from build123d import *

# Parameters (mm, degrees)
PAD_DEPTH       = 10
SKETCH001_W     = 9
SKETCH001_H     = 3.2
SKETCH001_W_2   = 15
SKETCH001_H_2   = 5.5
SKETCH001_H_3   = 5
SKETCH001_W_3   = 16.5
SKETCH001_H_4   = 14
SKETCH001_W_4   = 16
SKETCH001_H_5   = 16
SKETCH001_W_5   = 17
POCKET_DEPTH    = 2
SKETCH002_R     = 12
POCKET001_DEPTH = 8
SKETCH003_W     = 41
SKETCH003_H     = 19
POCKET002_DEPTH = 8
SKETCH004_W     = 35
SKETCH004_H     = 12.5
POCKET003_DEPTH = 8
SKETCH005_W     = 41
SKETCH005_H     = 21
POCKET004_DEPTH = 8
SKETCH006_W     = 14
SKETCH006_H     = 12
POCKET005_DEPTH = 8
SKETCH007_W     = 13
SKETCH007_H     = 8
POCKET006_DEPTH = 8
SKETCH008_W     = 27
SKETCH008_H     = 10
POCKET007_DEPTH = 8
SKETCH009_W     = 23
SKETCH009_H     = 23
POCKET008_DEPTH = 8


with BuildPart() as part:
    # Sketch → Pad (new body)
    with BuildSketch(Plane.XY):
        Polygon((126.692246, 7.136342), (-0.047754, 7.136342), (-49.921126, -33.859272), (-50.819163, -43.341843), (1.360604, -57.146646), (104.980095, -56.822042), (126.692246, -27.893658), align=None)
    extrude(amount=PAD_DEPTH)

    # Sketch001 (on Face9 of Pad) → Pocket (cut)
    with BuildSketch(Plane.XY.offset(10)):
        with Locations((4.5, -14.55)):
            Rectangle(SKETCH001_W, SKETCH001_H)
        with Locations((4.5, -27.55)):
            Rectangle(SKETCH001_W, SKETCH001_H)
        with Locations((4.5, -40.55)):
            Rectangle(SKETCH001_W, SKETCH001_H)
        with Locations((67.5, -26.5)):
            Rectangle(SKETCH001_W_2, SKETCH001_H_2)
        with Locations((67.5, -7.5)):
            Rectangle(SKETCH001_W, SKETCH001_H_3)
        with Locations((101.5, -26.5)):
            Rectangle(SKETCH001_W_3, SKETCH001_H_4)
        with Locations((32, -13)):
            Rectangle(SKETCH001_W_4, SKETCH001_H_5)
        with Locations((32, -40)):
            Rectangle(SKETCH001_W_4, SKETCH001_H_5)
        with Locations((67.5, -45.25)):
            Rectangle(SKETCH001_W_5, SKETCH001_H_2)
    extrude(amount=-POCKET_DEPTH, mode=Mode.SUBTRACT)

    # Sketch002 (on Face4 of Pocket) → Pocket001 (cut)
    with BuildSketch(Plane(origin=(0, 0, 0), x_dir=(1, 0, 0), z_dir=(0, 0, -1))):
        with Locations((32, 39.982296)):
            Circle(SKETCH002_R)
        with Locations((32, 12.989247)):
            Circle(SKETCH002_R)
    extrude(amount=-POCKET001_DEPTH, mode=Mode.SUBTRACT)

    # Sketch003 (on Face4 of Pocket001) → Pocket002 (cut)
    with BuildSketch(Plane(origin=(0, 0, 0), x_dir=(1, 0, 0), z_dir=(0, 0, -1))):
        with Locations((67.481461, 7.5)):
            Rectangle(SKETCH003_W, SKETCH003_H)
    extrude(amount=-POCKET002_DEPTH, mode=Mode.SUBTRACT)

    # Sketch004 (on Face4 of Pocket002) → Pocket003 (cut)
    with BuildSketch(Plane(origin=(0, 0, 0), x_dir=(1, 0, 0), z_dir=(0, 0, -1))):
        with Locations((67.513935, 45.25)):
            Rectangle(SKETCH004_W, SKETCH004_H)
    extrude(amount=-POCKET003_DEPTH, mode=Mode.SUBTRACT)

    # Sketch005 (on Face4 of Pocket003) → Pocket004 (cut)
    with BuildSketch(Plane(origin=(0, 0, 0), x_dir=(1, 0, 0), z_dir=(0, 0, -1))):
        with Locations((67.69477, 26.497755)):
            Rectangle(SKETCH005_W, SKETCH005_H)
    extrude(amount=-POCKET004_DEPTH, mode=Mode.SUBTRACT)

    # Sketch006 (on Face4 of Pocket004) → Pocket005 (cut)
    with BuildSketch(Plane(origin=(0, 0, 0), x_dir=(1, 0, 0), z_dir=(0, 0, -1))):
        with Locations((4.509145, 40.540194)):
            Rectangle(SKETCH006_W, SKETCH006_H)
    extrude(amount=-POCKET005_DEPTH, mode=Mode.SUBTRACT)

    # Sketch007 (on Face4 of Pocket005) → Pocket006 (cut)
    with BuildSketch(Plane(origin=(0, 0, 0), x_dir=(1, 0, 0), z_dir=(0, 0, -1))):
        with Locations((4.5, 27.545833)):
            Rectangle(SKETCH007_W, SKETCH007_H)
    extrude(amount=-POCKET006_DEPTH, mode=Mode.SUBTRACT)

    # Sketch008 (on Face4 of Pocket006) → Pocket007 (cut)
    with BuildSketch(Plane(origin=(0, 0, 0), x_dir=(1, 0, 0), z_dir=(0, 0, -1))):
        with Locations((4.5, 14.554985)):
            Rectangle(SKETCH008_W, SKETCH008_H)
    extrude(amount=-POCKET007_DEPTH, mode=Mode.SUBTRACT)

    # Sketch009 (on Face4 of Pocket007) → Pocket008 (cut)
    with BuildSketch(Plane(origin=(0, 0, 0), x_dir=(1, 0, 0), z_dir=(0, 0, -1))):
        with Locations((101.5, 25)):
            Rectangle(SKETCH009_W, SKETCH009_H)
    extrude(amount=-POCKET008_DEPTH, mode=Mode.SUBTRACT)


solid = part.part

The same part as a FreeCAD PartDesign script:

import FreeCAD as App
import Part
import Sketcher
Q = App.Units.Quantity

doc = App.newDocument("Part")
params = doc.addObject("Spreadsheet::Sheet", "Params")
for row, (alias, value) in enumerate([
    ("sketch1_width", "126.74 mm"),
    ("sketch1_height", "35.03 mm"),
    ("sketch1_length", "64.56 mm"),
    ("sketch1_length2", "103.619999 mm"),
    ("sketch1_length3", "36.17 mm"),
    ("pad1_length", "10 mm"),
    ("sketch2_width", "9 mm"),
    ("sketch2_width2", "15 mm"),
    ("sketch2_width3", "16 mm"),
    ("sketch2_width4", "17 mm"),
    ("sketch2_height", "5 mm"),
    ("pocket1_length", "2 mm"),
    ("sketch3_diameter", "24 mm"),
    ("pocket2_length", "8 mm"),
    ("sketch4_width", "41 mm"),
    ("sketch4_height", "19 mm"),
    ("pocket3_length", "8 mm"),
    ("sketch5_width", "35 mm"),
    ("sketch5_height", "12.5 mm"),
    ("pocket4_length", "8 mm"),
    ("sketch6_width", "41 mm"),
    ("sketch6_height", "21 mm"),
    ("pocket5_length", "8 mm"),
    ("sketch7_width", "14 mm"),
    ("sketch7_height", "12 mm"),
    ("pocket6_length", "8 mm"),
    ("sketch8_width", "13 mm"),
    ("sketch8_height", "8 mm"),
    ("pocket7_length", "8 mm"),
    ("sketch9_width", "27 mm"),
    ("sketch9_height", "10 mm"),
    ("pocket8_length", "8 mm"),
    ("sketch10_width", "23 mm"),
    ("pocket9_length", "8 mm"),
], start=1):
    params.set(f"A{row}", alias)
    params.set(f"B{row}", "=" + value)
    params.setAlias(f"B{row}", alias)

body = doc.addObject("PartDesign::Body", "Body")

sketch1 = body.newObject("Sketcher::SketchObject", "Sketch")
sketch1.AttachmentSupport = (doc.getObject("XY_Plane"), [""])
sketch1.MapMode = "FlatFace"
sketch1.addGeometry([
    Part.LineSegment(App.Vector(126.692246, 7.136342, 0), App.Vector(-0.047754, 7.136342, 0)),
    Part.LineSegment(App.Vector(-0.047754, 7.136342, 0), App.Vector(-49.921126, -33.859272, 0)),
    Part.LineSegment(App.Vector(-49.921126, -33.859272, 0), App.Vector(-50.819163, -43.341843, 0)),
    Part.LineSegment(App.Vector(-50.819163, -43.341843, 0), App.Vector(1.360604, -57.146646, 0)),
    Part.LineSegment(App.Vector(1.360604, -57.146646, 0), App.Vector(104.980095, -56.822042, 0)),
    Part.LineSegment(App.Vector(104.980095, -56.822042, 0), App.Vector(126.692246, -27.893658, 0)),
    Part.LineSegment(App.Vector(126.692246, -27.893658, 0), App.Vector(126.692246, 7.136342, 0)),
], False)
sketch1.addConstraint([
    Sketcher.Constraint("Coincident", 0, 2, 1, 1),
    Sketcher.Constraint("Coincident", 1, 2, 2, 1),
    Sketcher.Constraint("Coincident", 2, 2, 3, 1),
    Sketcher.Constraint("Coincident", 3, 2, 4, 1),
    Sketcher.Constraint("Coincident", 4, 2, 5, 1),
    Sketcher.Constraint("Coincident", 5, 2, 6, 1),
    Sketcher.Constraint("Coincident", 6, 2, 0, 1),
    Sketcher.Constraint("Horizontal", 0),
    Sketcher.Constraint("Vertical", 6),
    Sketcher.Constraint("DistanceX", 0, 2, 0, 1, 126.74),
    Sketcher.Constraint("DistanceY", 6, 1, 6, 2, 35.03),
    Sketcher.Constraint("Angle", 1, Q("-140.579999 deg")),
    Sketcher.Constraint("Angle", 2, Q("-95.410002 deg")),
    Sketcher.Constraint("Angle", 5, Q("53.11 deg")),
    Sketcher.Constraint("Distance", 1, 64.56),
    Sketcher.Constraint("Distance", 4, 103.619999),
    Sketcher.Constraint("Distance", 5, 36.17),
    Sketcher.Constraint("Distance", 2, 9.525),
    Sketcher.Constraint("Distance", 3, 53.975),
    Sketcher.Constraint("DistanceY", 1, 2, -1, 1, 33.859272),
    Sketcher.Constraint("DistanceX", 0, 2, -1, 1, 0.047754),
])
sketch1.setExpression("Constraints[9]", "Params.sketch1_width")
sketch1.setExpression("Constraints[10]", "Params.sketch1_height")
sketch1.setExpression("Constraints[14]", "Params.sketch1_length")
sketch1.setExpression("Constraints[15]", "Params.sketch1_length2")
sketch1.setExpression("Constraints[16]", "Params.sketch1_length3")
pad1 = body.newObject("PartDesign::Pad", "Pad")
pad1.Profile = sketch1
pad1.setExpression("Length", "Params.pad1_length")

sketch2 = body.newObject("Sketcher::SketchObject", "Sketch001")
sketch2.AttachmentSupport = (doc.getObject("XY_Plane"), [""])
sketch2.MapMode = "FlatFace"
sketch2.AttachmentOffset = App.Placement(App.Vector(0, 0, 10), App.Rotation())
sketch2.addGeometry([
    Part.LineSegment(App.Vector(0, -12.95, 0), App.Vector(0, -16.15, 0)),
    Part.LineSegment(App.Vector(0, -16.15, 0), App.Vector(9, -16.15, 0)),
    Part.LineSegment(App.Vector(9, -16.15, 0), App.Vector(9, -12.95, 0)),
    Part.LineSegment(App.Vector(9, -12.95, 0), App.Vector(0, -12.95, 0)),
    Part.LineSegment(App.Vector(0, -25.95, 0), App.Vector(0, -29.15, 0)),
    Part.LineSegment(App.Vector(0, -29.15, 0), App.Vector(9, -29.15, 0)),
    Part.LineSegment(App.Vector(9, -29.15, 0), App.Vector(9, -25.95, 0)),
    Part.LineSegment(App.Vector(9, -25.95, 0), App.Vector(0, -25.95, 0)),
    Part.LineSegment(App.Vector(0, -38.95, 0), App.Vector(0, -42.15, 0)),
    Part.LineSegment(App.Vector(0, -42.15, 0), App.Vector(9, -42.15, 0)),
    Part.LineSegment(App.Vector(9, -42.15, 0), App.Vector(9, -38.95, 0)),
    Part.LineSegment(App.Vector(9, -38.95, 0), App.Vector(0, -38.95, 0)),
    Part.LineSegment(App.Vector(60, -23.75, 0), App.Vector(60, -29.25, 0)),
    Part.LineSegment(App.Vector(60, -29.25, 0), App.Vector(75, -29.25, 0)),
    Part.LineSegment(App.Vector(75, -29.25, 0), App.Vector(75, -23.75, 0)),
    Part.LineSegment(App.Vector(75, -23.75, 0), App.Vector(60, -23.75, 0)),
    Part.LineSegment(App.Vector(63, -5, 0), App.Vector(63, -10, 0)),
    Part.LineSegment(App.Vector(63, -10, 0), App.Vector(72, -10, 0)),
    Part.LineSegment(App.Vector(72, -10, 0), App.Vector(72, -5, 0)),
    Part.LineSegment(App.Vector(72, -5, 0), App.Vector(63, -5, 0)),
    Part.LineSegment(App.Vector(93.25, -19.5, 0), App.Vector(93.25, -33.5, 0)),
    Part.LineSegment(App.Vector(93.25, -33.5, 0), App.Vector(109.75, -33.5, 0)),
    Part.LineSegment(App.Vector(109.75, -33.5, 0), App.Vector(109.75, -19.5, 0)),
    Part.LineSegment(App.Vector(109.75, -19.5, 0), App.Vector(93.25, -19.5, 0)),
    Part.LineSegment(App.Vector(24, -5, 0), App.Vector(24, -21, 0)),
    Part.LineSegment(App.Vector(24, -21, 0), App.Vector(40, -21, 0)),
    Part.LineSegment(App.Vector(40, -21, 0), App.Vector(40, -5, 0)),
    Part.LineSegment(App.Vector(40, -5, 0), App.Vector(24, -5, 0)),
    Part.LineSegment(App.Vector(24, -32, 0), App.Vector(24, -48, 0)),
    Part.LineSegment(App.Vector(24, -48, 0), App.Vector(40, -48, 0)),
    Part.LineSegment(App.Vector(40, -48, 0), App.Vector(40, -32, 0)),
    Part.LineSegment(App.Vector(40, -32, 0), App.Vector(24, -32, 0)),
    Part.LineSegment(App.Vector(59, -42.5, 0), App.Vector(59, -48, 0)),
    Part.LineSegment(App.Vector(59, -48, 0), App.Vector(76, -48, 0)),
    Part.LineSegment(App.Vector(76, -48, 0), App.Vector(76, -42.5, 0)),
    Part.LineSegment(App.Vector(76, -42.5, 0), App.Vector(59, -42.5, 0)),
], False)
sketch2.addConstraint([
    Sketcher.Constraint("Coincident", 0, 2, 1, 1),
    Sketcher.Constraint("Coincident", 1, 2, 2, 1),
    Sketcher.Constraint("Coincident", 2, 2, 3, 1),
    Sketcher.Constraint("Coincident", 3, 2, 0, 1),
    Sketcher.Constraint("Coincident", 4, 2, 5, 1),
    Sketcher.Constraint("Coincident", 5, 2, 6, 1),
    Sketcher.Constraint("Coincident", 6, 2, 7, 1),
    Sketcher.Constraint("Coincident", 7, 2, 4, 1),
    Sketcher.Constraint("Coincident", 8, 2, 9, 1),
    Sketcher.Constraint("Coincident", 9, 2, 10, 1),
    Sketcher.Constraint("Coincident", 10, 2, 11, 1),
    Sketcher.Constraint("Coincident", 11, 2, 8, 1),
    Sketcher.Constraint("Coincident", 12, 2, 13, 1),
    Sketcher.Constraint("Coincident", 13, 2, 14, 1),
    Sketcher.Constraint("Coincident", 14, 2, 15, 1),
    Sketcher.Constraint("Coincident", 15, 2, 12, 1),
    Sketcher.Constraint("Coincident", 16, 2, 17, 1),
    Sketcher.Constraint("Coincident", 17, 2, 18, 1),
    Sketcher.Constraint("Coincident", 18, 2, 19, 1),
    Sketcher.Constraint("Coincident", 19, 2, 16, 1),
    Sketcher.Constraint("Coincident", 20, 2, 21, 1),
    Sketcher.Constraint("Coincident", 21, 2, 22, 1),
    Sketcher.Constraint("Coincident", 22, 2, 23, 1),
    Sketcher.Constraint("Coincident", 23, 2, 20, 1),
    Sketcher.Constraint("Coincident", 24, 2, 25, 1),
    Sketcher.Constraint("Coincident", 25, 2, 26, 1),
    Sketcher.Constraint("Coincident", 26, 2, 27, 1),
    Sketcher.Constraint("Coincident", 27, 2, 24, 1),
    Sketcher.Constraint("Coincident", 28, 2, 29, 1),
    Sketcher.Constraint("Coincident", 29, 2, 30, 1),
    Sketcher.Constraint("Coincident", 30, 2, 31, 1),
    Sketcher.Constraint("Coincident", 31, 2, 28, 1),
    Sketcher.Constraint("Coincident", 32, 2, 33, 1),
    Sketcher.Constraint("Coincident", 33, 2, 34, 1),
    Sketcher.Constraint("Coincident", 34, 2, 35, 1),
    Sketcher.Constraint("Coincident", 35, 2, 32, 1),
    Sketcher.Constraint("Vertical", 0),
    Sketcher.Constraint("Horizontal", 1),
    Sketcher.Constraint("Vertical", 2),
    Sketcher.Constraint("Horizontal", 3),
    Sketcher.Constraint("Vertical", 4),
    Sketcher.Constraint("Horizontal", 5),
    Sketcher.Constraint("Vertical", 6),
    Sketcher.Constraint("Horizontal", 7),
    Sketcher.Constraint("Vertical", 8),
    Sketcher.Constraint("Horizontal", 9),
    Sketcher.Constraint("Vertical", 10),
    Sketcher.Constraint("Horizontal", 11),
    Sketcher.Constraint("Vertical", 12),
    Sketcher.Constraint("Horizontal", 13),
    Sketcher.Constraint("Vertical", 14),
    Sketcher.Constraint("Horizontal", 15),
    Sketcher.Constraint("Vertical", 16),
    Sketcher.Constraint("Horizontal", 17),
    Sketcher.Constraint("Vertical", 18),
    Sketcher.Constraint("Horizontal", 19),
    Sketcher.Constraint("Vertical", 20),
    Sketcher.Constraint("Horizontal", 21),
    Sketcher.Constraint("Vertical", 22),
    Sketcher.Constraint("Horizontal", 23),
    Sketcher.Constraint("Vertical", 24),
    Sketcher.Constraint("Horizontal", 25),
    Sketcher.Constraint("Vertical", 26),
    Sketcher.Constraint("Horizontal", 27),
    Sketcher.Constraint("Vertical", 28),
    Sketcher.Constraint("Horizontal", 29),
    Sketcher.Constraint("Vertical", 30),
    Sketcher.Constraint("Horizontal", 31),
    Sketcher.Constraint("Vertical", 32),
    Sketcher.Constraint("Horizontal", 33),
    Sketcher.Constraint("Vertical", 34),
    Sketcher.Constraint("Horizontal", 35),
    Sketcher.Constraint("PointOnObject", 0, 2, -2),
    Sketcher.Constraint("PointOnObject", 4, 2, -2),
    Sketcher.Constraint("PointOnObject", 8, 2, -2),
    Sketcher.Constraint("Horizontal", 19, 2, 26, 2),
    Sketcher.Constraint("Horizontal", 29, 2, 32, 2),
    Sketcher.Constraint("Vertical", 2, 2, 5, 2),
    Sketcher.Constraint("Vertical", 6, 2, 9, 2),
    Sketcher.Constraint("Vertical", 27, 2, 28, 2),
    Sketcher.Constraint("Vertical", 26, 2, 29, 2),
    Sketcher.Constraint("Equal", 11, 17),
    Sketcher.Constraint("Equal", 2, 4),
    Sketcher.Constraint("Equal", 6, 8),
    Sketcher.Constraint("Equal", 31, 24),
    Sketcher.Constraint("Equal", 26, 28),
    Sketcher.Constraint("Equal", 14, 32),
    Sketcher.Constraint("DistanceX", 1, 1, 1, 2, 9.0),
    Sketcher.Constraint("DistanceX", 13, 1, 13, 2, 15.0),
    Sketcher.Constraint("DistanceX", 25, 1, 25, 2, 16.0),
    Sketcher.Constraint("DistanceX", 33, 1, 33, 2, 17.0),
    Sketcher.Constraint("DistanceY", 16, 2, 16, 1, 5.0),
    Sketcher.Constraint("DistanceY", 20, 2, 20, 1, 14.0),
    Sketcher.Constraint("DistanceX", 21, 1, 21, 2, 16.5),
    Sketcher.Constraint("DistanceY", 0, 2, 0, 1, 3.2),
    Sketcher.Constraint("DistanceY", 12, 2, 12, 1, 5.5),
    Sketcher.Constraint("DistanceX", -1, 1, 12, 2, 60.0),
    Sketcher.Constraint("DistanceX", -1, 1, 16, 2, 63.0),
    Sketcher.Constraint("DistanceY", 16, 2, -1, 1, 10.0),
    Sketcher.Constraint("DistanceX", -1, 1, 24, 2, 24.0),
    Sketcher.Constraint("DistanceY", 28, 2, -1, 1, 48.0),
    Sketcher.Constraint("DistanceX", -1, 1, 32, 2, 59.0),
    Sketcher.Constraint("DistanceY", 4, 2, 0, 2, 13.0),
    Sketcher.Constraint("DistanceY", 8, 2, 4, 2, 13.0),
    Sketcher.Constraint("DistanceY", 34, 2, 20, 2, 9.0),
    Sketcher.Constraint("DistanceY", 12, 2, 5, 2, 0.1),
    Sketcher.Constraint("DistanceY", 0, 2, -1, 1, 16.15),
    Sketcher.Constraint("DistanceX", -1, 1, 20, 2, 93.25),
])
sketch2.setExpression("Constraints[87]", "Params.sketch2_width")
sketch2.setExpression("Constraints[88]", "Params.sketch2_width2")
sketch2.setExpression("Constraints[89]", "Params.sketch2_width3")
sketch2.setExpression("Constraints[90]", "Params.sketch2_width4")
sketch2.setExpression("Constraints[91]", "Params.sketch2_height")
pocket1 = body.newObject("PartDesign::Pocket", "Pocket")
pocket1.Profile = sketch2
pocket1.setExpression("Length", "Params.pocket1_length")

sketch3 = body.newObject("Sketcher::SketchObject", "Sketch002")
sketch3.AttachmentSupport = (doc.getObject("XY_Plane"), [""])
sketch3.MapMode = "FlatFace"
sketch3.addGeometry([
    Part.Circle(App.Vector(32, -39.982296, 0), App.Vector(0, 0, 1), 12),
    Part.Circle(App.Vector(32, -12.989247, 0), App.Vector(0, 0, 1), 12),
], False)
sketch3.addConstraint([
    Sketcher.Constraint("Equal", 0, 1),
    Sketcher.Constraint("Vertical", 0, 3, 1, 3),
    Sketcher.Constraint("Diameter", 0, 24.0),
    Sketcher.Constraint("DistanceX", -1, 1, 0, 3, 32.0),
    Sketcher.Constraint("DistanceY", 0, 3, 1, 3, 26.993049),
    Sketcher.Constraint("DistanceY", 0, 3, -1, 1, 39.982296),
])
sketch3.setExpression("Constraints[2]", "Params.sketch3_diameter")
pocket2 = body.newObject("PartDesign::Pocket", "Pocket001")
pocket2.Profile = sketch3
pocket2.setExpression("Length", "Params.pocket2_length")
pocket2.Reversed = True

sketch4 = body.newObject("Sketcher::SketchObject", "Sketch003")
sketch4.AttachmentSupport = (doc.getObject("XY_Plane"), [""])
sketch4.MapMode = "FlatFace"
sketch4.addGeometry([
    Part.LineSegment(App.Vector(46.981461, -17, 0), App.Vector(46.981461, 2, 0)),
    Part.LineSegment(App.Vector(46.981461, 2, 0), App.Vector(87.981461, 2, 0)),
    Part.LineSegment(App.Vector(87.981461, 2, 0), App.Vector(87.981461, -17, 0)),
    Part.LineSegment(App.Vector(87.981461, -17, 0), App.Vector(46.981461, -17, 0)),
], False)
sketch4.addConstraint([
    Sketcher.Constraint("Coincident", 0, 2, 1, 1),
    Sketcher.Constraint("Coincident", 1, 2, 2, 1),
    Sketcher.Constraint("Coincident", 2, 2, 3, 1),
    Sketcher.Constraint("Coincident", 3, 2, 0, 1),
    Sketcher.Constraint("Vertical", 0),
    Sketcher.Constraint("Horizontal", 1),
    Sketcher.Constraint("Vertical", 2),
    Sketcher.Constraint("Horizontal", 3),
    Sketcher.Constraint("DistanceX", 1, 1, 1, 2, 41.0),
    Sketcher.Constraint("DistanceY", 0, 1, 0, 2, 19.0),
    Sketcher.Constraint("DistanceY", -1, 1, 0, 2, 2.0),
    Sketcher.Constraint("DistanceX", -1, 1, 0, 2, 46.981461),
])
sketch4.setExpression("Constraints[8]", "Params.sketch4_width")
sketch4.setExpression("Constraints[9]", "Params.sketch4_height")
pocket3 = body.newObject("PartDesign::Pocket", "Pocket002")
pocket3.Profile = sketch4
pocket3.setExpression("Length", "Params.pocket3_length")
pocket3.Reversed = True

sketch5 = body.newObject("Sketcher::SketchObject", "Sketch004")
sketch5.AttachmentSupport = (doc.getObject("XY_Plane"), [""])
sketch5.MapMode = "FlatFace"
sketch5.addGeometry([
    Part.LineSegment(App.Vector(50.013935, -51.5, 0), App.Vector(50.013935, -39, 0)),
    Part.LineSegment(App.Vector(50.013935, -39, 0), App.Vector(85.013935, -39, 0)),
    Part.LineSegment(App.Vector(85.013935, -39, 0), App.Vector(85.013935, -51.5, 0)),
    Part.LineSegment(App.Vector(85.013935, -51.5, 0), App.Vector(50.013935, -51.5, 0)),
], False)
sketch5.addConstraint([
    Sketcher.Constraint("Coincident", 0, 2, 1, 1),
    Sketcher.Constraint("Coincident", 1, 2, 2, 1),
    Sketcher.Constraint("Coincident", 2, 2, 3, 1),
    Sketcher.Constraint("Coincident", 3, 2, 0, 1),
    Sketcher.Constraint("Vertical", 0),
    Sketcher.Constraint("Horizontal", 1),
    Sketcher.Constraint("Vertical", 2),
    Sketcher.Constraint("Horizontal", 3),
    Sketcher.Constraint("DistanceX", 1, 1, 1, 2, 35.0),
    Sketcher.Constraint("DistanceY", 0, 1, 0, 2, 12.5),
    Sketcher.Constraint("DistanceY", 0, 2, -1, 1, 39.0),
    Sketcher.Constraint("DistanceX", -1, 1, 0, 2, 50.013935),
])
sketch5.setExpression("Constraints[8]", "Params.sketch5_width")
sketch5.setExpression("Constraints[9]", "Params.sketch5_height")
pocket4 = body.newObject("PartDesign::Pocket", "Pocket003")
pocket4.Profile = sketch5
pocket4.setExpression("Length", "Params.pocket4_length")
pocket4.Reversed = True

sketch6 = body.newObject("Sketcher::SketchObject", "Sketch005")
sketch6.AttachmentSupport = (doc.getObject("XY_Plane"), [""])
sketch6.MapMode = "FlatFace"
sketch6.addGeometry([
    Part.LineSegment(App.Vector(47.19477, -36.997755, 0), App.Vector(47.19477, -15.997755, 0)),
    Part.LineSegment(App.Vector(47.19477, -15.997755, 0), App.Vector(88.19477, -15.997755, 0)),
    Part.LineSegment(App.Vector(88.19477, -15.997755, 0), App.Vector(88.19477, -36.997755, 0)),
    Part.LineSegment(App.Vector(88.19477, -36.997755, 0), App.Vector(47.19477, -36.997755, 0)),
], False)
sketch6.addConstraint([
    Sketcher.Constraint("Coincident", 0, 2, 1, 1),
    Sketcher.Constraint("Coincident", 1, 2, 2, 1),
    Sketcher.Constraint("Coincident", 2, 2, 3, 1),
    Sketcher.Constraint("Coincident", 3, 2, 0, 1),
    Sketcher.Constraint("Vertical", 0),
    Sketcher.Constraint("Horizontal", 1),
    Sketcher.Constraint("Vertical", 2),
    Sketcher.Constraint("Horizontal", 3),
    Sketcher.Constraint("DistanceX", 1, 1, 1, 2, 41.0),
    Sketcher.Constraint("DistanceY", 0, 1, 0, 2, 21.0),
    Sketcher.Constraint("DistanceX", -1, 1, 0, 2, 47.19477),
    Sketcher.Constraint("DistanceY", 0, 2, -1, 1, 15.997755),
])
sketch6.setExpression("Constraints[8]", "Params.sketch6_width")
sketch6.setExpression("Constraints[9]", "Params.sketch6_height")
pocket5 = body.newObject("PartDesign::Pocket", "Pocket004")
pocket5.Profile = sketch6
pocket5.setExpression("Length", "Params.pocket5_length")
pocket5.Reversed = True

sketch7 = body.newObject("Sketcher::SketchObject", "Sketch006")
sketch7.AttachmentSupport = (doc.getObject("XY_Plane"), [""])
sketch7.MapMode = "FlatFace"
sketch7.addGeometry([
    Part.LineSegment(App.Vector(-2.490855, -46.540194, 0), App.Vector(-2.490855, -34.540194, 0)),
    Part.LineSegment(App.Vector(-2.490855, -34.540194, 0), App.Vector(11.509145, -34.540194, 0)),
    Part.LineSegment(App.Vector(11.509145, -34.540194, 0), App.Vector(11.509145, -46.540194, 0)),
    Part.LineSegment(App.Vector(11.509145, -46.540194, 0), App.Vector(-2.490855, -46.540194, 0)),
], False)
sketch7.addConstraint([
    Sketcher.Constraint("Coincident", 0, 2, 1, 1),
    Sketcher.Constraint("Coincident", 1, 2, 2, 1),
    Sketcher.Constraint("Coincident", 2, 2, 3, 1),
    Sketcher.Constraint("Coincident", 3, 2, 0, 1),
    Sketcher.Constraint("Vertical", 0),
    Sketcher.Constraint("Horizontal", 1),
    Sketcher.Constraint("Vertical", 2),
    Sketcher.Constraint("Horizontal", 3),
    Sketcher.Constraint("DistanceX", 1, 1, 1, 2, 14.0),
    Sketcher.Constraint("DistanceY", 0, 1, 0, 2, 12.0),
    Sketcher.Constraint("DistanceX", 0, 2, -1, 1, 2.490855),
    Sketcher.Constraint("DistanceY", 0, 2, -1, 1, 34.540194),
])
sketch7.setExpression("Constraints[8]", "Params.sketch7_width")
sketch7.setExpression("Constraints[9]", "Params.sketch7_height")
pocket6 = body.newObject("PartDesign::Pocket", "Pocket005")
pocket6.Profile = sketch7
pocket6.setExpression("Length", "Params.pocket6_length")
pocket6.Reversed = True

sketch8 = body.newObject("Sketcher::SketchObject", "Sketch007")
sketch8.AttachmentSupport = (doc.getObject("XY_Plane"), [""])
sketch8.MapMode = "FlatFace"
sketch8.addGeometry([
    Part.LineSegment(App.Vector(-2, -31.545833, 0), App.Vector(-2, -23.545833, 0)),
    Part.LineSegment(App.Vector(-2, -23.545833, 0), App.Vector(11, -23.545833, 0)),
    Part.LineSegment(App.Vector(11, -23.545833, 0), App.Vector(11, -31.545833, 0)),
    Part.LineSegment(App.Vector(11, -31.545833, 0), App.Vector(-2, -31.545833, 0)),
], False)
sketch8.addConstraint([
    Sketcher.Constraint("Coincident", 0, 2, 1, 1),
    Sketcher.Constraint("Coincident", 1, 2, 2, 1),
    Sketcher.Constraint("Coincident", 2, 2, 3, 1),
    Sketcher.Constraint("Coincident", 3, 2, 0, 1),
    Sketcher.Constraint("Vertical", 0),
    Sketcher.Constraint("Horizontal", 1),
    Sketcher.Constraint("Vertical", 2),
    Sketcher.Constraint("Horizontal", 3),
    Sketcher.Constraint("DistanceX", 1, 1, 1, 2, 13.0),
    Sketcher.Constraint("DistanceY", 0, 1, 0, 2, 8.0),
    Sketcher.Constraint("DistanceX", 0, 2, -1, 1, 2.0),
    Sketcher.Constraint("DistanceY", 0, 2, -1, 1, 23.545833),
])
sketch8.setExpression("Constraints[8]", "Params.sketch8_width")
sketch8.setExpression("Constraints[9]", "Params.sketch8_height")
pocket7 = body.newObject("PartDesign::Pocket", "Pocket006")
pocket7.Profile = sketch8
pocket7.setExpression("Length", "Params.pocket7_length")
pocket7.Reversed = True

sketch9 = body.newObject("Sketcher::SketchObject", "Sketch008")
sketch9.AttachmentSupport = (doc.getObject("XY_Plane"), [""])
sketch9.MapMode = "FlatFace"
sketch9.addGeometry([
    Part.LineSegment(App.Vector(-9, -19.554985, 0), App.Vector(-9, -9.554985, 0)),
    Part.LineSegment(App.Vector(-9, -9.554985, 0), App.Vector(18, -9.554985, 0)),
    Part.LineSegment(App.Vector(18, -9.554985, 0), App.Vector(18, -19.554985, 0)),
    Part.LineSegment(App.Vector(18, -19.554985, 0), App.Vector(-9, -19.554985, 0)),
], False)
sketch9.addConstraint([
    Sketcher.Constraint("Coincident", 0, 2, 1, 1),
    Sketcher.Constraint("Coincident", 1, 2, 2, 1),
    Sketcher.Constraint("Coincident", 2, 2, 3, 1),
    Sketcher.Constraint("Coincident", 3, 2, 0, 1),
    Sketcher.Constraint("Vertical", 0),
    Sketcher.Constraint("Horizontal", 1),
    Sketcher.Constraint("Vertical", 2),
    Sketcher.Constraint("Horizontal", 3),
    Sketcher.Constraint("DistanceX", 1, 1, 1, 2, 27.0),
    Sketcher.Constraint("DistanceY", 0, 1, 0, 2, 10.0),
    Sketcher.Constraint("DistanceX", 0, 2, -1, 1, 9.0),
    Sketcher.Constraint("DistanceY", 0, 2, -1, 1, 9.554985),
])
sketch9.setExpression("Constraints[8]", "Params.sketch9_width")
sketch9.setExpression("Constraints[9]", "Params.sketch9_height")
pocket8 = body.newObject("PartDesign::Pocket", "Pocket007")
pocket8.Profile = sketch9
pocket8.setExpression("Length", "Params.pocket8_length")
pocket8.Reversed = True

sketch10 = body.newObject("Sketcher::SketchObject", "Sketch009")
sketch10.AttachmentSupport = (doc.getObject("XY_Plane"), [""])
sketch10.MapMode = "FlatFace"
sketch10.addGeometry([
    Part.LineSegment(App.Vector(90, -36.5, 0), App.Vector(90, -13.5, 0)),
    Part.LineSegment(App.Vector(90, -13.5, 0), App.Vector(113, -13.5, 0)),
    Part.LineSegment(App.Vector(113, -13.5, 0), App.Vector(113, -36.5, 0)),
    Part.LineSegment(App.Vector(113, -36.5, 0), App.Vector(90, -36.5, 0)),
], False)
sketch10.addConstraint([
    Sketcher.Constraint("Coincident", 0, 2, 1, 1),
    Sketcher.Constraint("Coincident", 1, 2, 2, 1),
    Sketcher.Constraint("Coincident", 2, 2, 3, 1),
    Sketcher.Constraint("Coincident", 3, 2, 0, 1),
    Sketcher.Constraint("Vertical", 0),
    Sketcher.Constraint("Horizontal", 1),
    Sketcher.Constraint("Vertical", 2),
    Sketcher.Constraint("Horizontal", 3),
    Sketcher.Constraint("Equal", 3, 0),
    Sketcher.Constraint("DistanceX", 1, 1, 1, 2, 23.0),
    Sketcher.Constraint("DistanceX", -1, 1, 0, 2, 90.0),
    Sketcher.Constraint("DistanceY", 0, 2, -1, 1, 13.5),
])
sketch10.setExpression("Constraints[9]", "Params.sketch10_width")
pocket9 = body.newObject("PartDesign::Pocket", "Pocket008")
pocket9.Profile = sketch10
pocket9.setExpression("Length", "Params.pocket9_length")
pocket9.Reversed = True

doc.recompute()
